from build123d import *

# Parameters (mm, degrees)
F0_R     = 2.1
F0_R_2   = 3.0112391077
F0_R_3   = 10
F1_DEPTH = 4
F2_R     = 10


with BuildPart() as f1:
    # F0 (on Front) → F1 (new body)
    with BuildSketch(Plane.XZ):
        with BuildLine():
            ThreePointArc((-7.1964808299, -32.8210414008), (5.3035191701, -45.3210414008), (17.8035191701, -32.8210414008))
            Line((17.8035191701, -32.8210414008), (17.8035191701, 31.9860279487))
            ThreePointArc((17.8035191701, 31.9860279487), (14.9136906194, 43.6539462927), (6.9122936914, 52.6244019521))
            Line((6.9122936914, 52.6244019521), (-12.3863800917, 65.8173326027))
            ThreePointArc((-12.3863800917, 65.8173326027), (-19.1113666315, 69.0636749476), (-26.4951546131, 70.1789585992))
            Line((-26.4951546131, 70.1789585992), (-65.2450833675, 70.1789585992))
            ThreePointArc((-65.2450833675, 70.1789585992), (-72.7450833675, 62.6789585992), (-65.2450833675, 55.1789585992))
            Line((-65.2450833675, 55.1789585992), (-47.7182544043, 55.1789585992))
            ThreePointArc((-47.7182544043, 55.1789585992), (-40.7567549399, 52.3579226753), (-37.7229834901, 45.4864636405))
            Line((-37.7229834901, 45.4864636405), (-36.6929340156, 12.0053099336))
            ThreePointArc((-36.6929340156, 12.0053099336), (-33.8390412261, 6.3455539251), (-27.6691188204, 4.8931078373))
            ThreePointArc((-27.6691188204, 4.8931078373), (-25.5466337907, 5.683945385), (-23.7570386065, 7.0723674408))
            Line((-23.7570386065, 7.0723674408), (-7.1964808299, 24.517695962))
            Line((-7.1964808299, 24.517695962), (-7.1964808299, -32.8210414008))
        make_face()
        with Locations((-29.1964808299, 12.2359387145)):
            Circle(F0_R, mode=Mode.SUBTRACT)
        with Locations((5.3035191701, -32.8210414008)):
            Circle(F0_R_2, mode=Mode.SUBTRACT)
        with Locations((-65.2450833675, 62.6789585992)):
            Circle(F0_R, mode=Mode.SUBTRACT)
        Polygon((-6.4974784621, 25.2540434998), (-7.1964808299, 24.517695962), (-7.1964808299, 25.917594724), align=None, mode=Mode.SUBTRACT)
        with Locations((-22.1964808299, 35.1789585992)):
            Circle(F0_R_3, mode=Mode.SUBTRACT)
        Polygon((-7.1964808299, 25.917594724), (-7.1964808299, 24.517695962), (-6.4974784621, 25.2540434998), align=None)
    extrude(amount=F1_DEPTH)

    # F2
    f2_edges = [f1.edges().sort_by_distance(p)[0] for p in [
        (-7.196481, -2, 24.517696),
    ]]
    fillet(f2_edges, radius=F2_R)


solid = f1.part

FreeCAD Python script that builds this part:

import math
import FreeCAD as App
import Part
import Sketcher
Q = App.Units.Quantity


def edges_at(feature, points):
    """Names of the edges that pass closest to the given points."""
    edges = feature.Shape.Edges
    near = lambda p: min(range(len(edges)), key=lambda i: edges[i].distToShape(Part.Vertex(*p))[0])
    return sorted({f"Edge{near(p) + 1}" for p in points})

doc = App.newDocument("Part")
body = doc.addObject("PartDesign::Body", "Body")

# Sketch on XZ plane
sketch1 = body.newObject("Sketcher::SketchObject", "Sketch")
sketch1.AttachmentSupport = (doc.getObject("XZ_Plane"), [""])
sketch1.MapMode = "FlatFace"
sketch1.addGeometry([
    Part.ArcOfCircle(Part.Circle(App.Vector(-29.2, 12.2, 0), App.Vector(0, 0, 1), 7.5), math.radians(-78), math.radians(-44)),  # 0
    Part.LineSegment(App.Vector(-23.8, 7.1, 0), App.Vector(-7.2, 24.5, 0)),  # 1
    Part.LineSegment(App.Vector(-7.2, 24.5, 0), App.Vector(-7.2, -32.8, 0)),  # 2
    Part.ArcOfCircle(Part.Circle(App.Vector(5.3, -32.8, 0), App.Vector(0, 0, 1), 12.5), math.radians(180), math.radians(360)),  # 3
    Part.LineSegment(App.Vector(17.8, -32.8, 0), App.Vector(17.8, 32, 0)),  # 4
    Part.ArcOfCircle(Part.Circle(App.Vector(-7.2, 32, 0), App.Vector(0, 0, 1), 25), math.radians(0), math.radians(56)),  # 5
    Part.LineSegment(App.Vector(6.9, 52.6, 0), App.Vector(-12.4, 65.8, 0)),  # 6
    Part.ArcOfCircle(Part.Circle(App.Vector(-26.5, 45.2, 0), App.Vector(0, 0, 1), 25), math.radians(56), math.radians(90)),  # 7
    Part.LineSegment(App.Vector(-26.5, 70.2, 0), App.Vector(-65.2, 70.2, 0)),  # 8
    Part.ArcOfCircle(Part.Circle(App.Vector(-65.2, 62.7, 0), App.Vector(0, 0, 1), 7.5), math.radians(90), math.radians(270)),  # 9
    Part.LineSegment(App.Vector(-65.2, 55.2, 0), App.Vector(-47.7, 55.2, 0)),  # 10
    Part.ArcOfCircle(Part.Circle(App.Vector(-47.7, 45.2, 0), App.Vector(0, 0, 1), 10), math.radians(2), math.radians(90)),  # 11
    Part.LineSegment(App.Vector(-37.7, 45.5, 0), App.Vector(-36.7, 12, 0)),  # 12
    Part.ArcOfCircle(Part.Circle(App.Vector(-29.2, 12.2, 0), App.Vector(0, 0, 1), 7.5), math.radians(-178), math.radians(-78)),  # 13
    Part.Circle(App.Vector(5.3, -32.8, 0), App.Vector(0, 0, 1), 3),  # 14
    Part.Circle(App.Vector(-29.2, 12.2, 0), App.Vector(0, 0, 1), 2.1),  # 15
    Part.Circle(App.Vector(-65.2, 62.7, 0), App.Vector(0, 0, 1), 2.1),  # 16
    Part.Circle(App.Vector(-22.2, 35.2, 0), App.Vector(0, 0, 1), 10),  # 17
], False)
sketch1.addConstraint([
    Sketcher.Constraint("Tangent", 0, 2, 1, 1),
    Sketcher.Constraint("Coincident", 1, 2, 2, 1),
    Sketcher.Constraint("Tangent", 2, 2, 3, 1),
    Sketcher.Constraint("Tangent", 3, 2, 4, 1),
    Sketcher.Constraint("Tangent", 4, 2, 5, 1),
    Sketcher.Constraint("Tangent", 5, 2, 6, 1),
    Sketcher.Constraint("Tangent", 6, 2, 7, 1),
    Sketcher.Constraint("Tangent", 7, 2, 8, 1),
    Sketcher.Constraint("Tangent", 8, 2, 9, 1),
    Sketcher.Constraint("Tangent", 9, 2, 10, 1),
    Sketcher.Constraint("Tangent", 10, 2, 11, 2),
    Sketcher.Constraint("Tangent", 11, 1, 12, 1),
    Sketcher.Constraint("Tangent", 12, 2, 13, 1),
    Sketcher.Constraint("Tangent", 13, 2, 0, 1),
    Sketcher.Constraint("Vertical", 2),
    Sketcher.Constraint("Vertical", 4),
    Sketcher.Constraint("Horizontal", 8),
    Sketcher.Constraint("Horizontal", 10),
    Sketcher.Constraint("Coincident", 14, 3, 3, 3),
    Sketcher.Constraint("Coincident", 15, 3, 0, 3),
    Sketcher.Constraint("Coincident", 16, 3, 9, 3),
    Sketcher.Constraint("Equal", 5, 7),
    Sketcher.Constraint("Equal", 0, 9),
    Sketcher.Constraint("Equal", 9, 13),
    Sketcher.Constraint("Equal", 15, 16),
    Sketcher.Constraint("Equal", 11, 17),
    Sketcher.Constraint("Horizontal", 7, 3, 11, 3),
    Sketcher.Constraint("Vertical", 5, 3, 1, 2),
    Sketcher.Constraint("Diameter", 17, Q("20 mm")),
    Sketcher.Constraint("Radius", 5, Q("25 mm")),
    Sketcher.Constraint("Diameter", 15, Q("4.2 mm")),
    Sketcher.Constraint("DistanceX", 0, 3, 5, 3, Q("22 mm")),
    Sketcher.Constraint("DistanceY", 3, 3, 7, 3, Q("78 mm")),
    Sketcher.Constraint("DistanceY", 17, 3, 7, 3, Q("10 mm")),
    Sketcher.Constraint("DistanceX", 17, 3, 5, 3, Q("15 mm")),
    Sketcher.Constraint("Diameter", 14, Q("6.022478 mm")),
    Sketcher.Constraint("DistanceX", 8, 2, 8, 1, Q("38.749929 mm")),
    Sketcher.Constraint("DistanceX", 10, 1, 10, 2, Q("17.526829 mm")),
    Sketcher.Constraint("DistanceY", 4, 1, 4, 2, Q("64.807069 mm")),
    Sketcher.Constraint("DistanceY", -1, 1, 5, 2, Q("52.624402 mm")),
    Sketcher.Constraint("DistanceX", 17, 3, 6, 2, Q("9.810101 mm")),
    Sketcher.Constraint("Distance", 1, Q("24.05393 mm")),
    Sketcher.Constraint("DistanceY", 2, 2, 2, 1, Q("57.338737 mm")),
    Sketcher.Constraint("DistanceX", 0, 3, -1, 1, Q("29.196481 mm")),
    Sketcher.Constraint("DistanceX", 13, 2, -1, 1, Q("27.669119 mm")),
])
pad1 = body.newObject("PartDesign::Pad", "Pad")
pad1.Profile = sketch1
pad1.Length = 4
doc.recompute()

fillet = body.newObject("PartDesign::Fillet", "Fillet")
fillet.Base = (pad1, edges_at(pad1, [(-7.196, -2, 24.518)]))
fillet.Radius = 10

doc.recompute()
